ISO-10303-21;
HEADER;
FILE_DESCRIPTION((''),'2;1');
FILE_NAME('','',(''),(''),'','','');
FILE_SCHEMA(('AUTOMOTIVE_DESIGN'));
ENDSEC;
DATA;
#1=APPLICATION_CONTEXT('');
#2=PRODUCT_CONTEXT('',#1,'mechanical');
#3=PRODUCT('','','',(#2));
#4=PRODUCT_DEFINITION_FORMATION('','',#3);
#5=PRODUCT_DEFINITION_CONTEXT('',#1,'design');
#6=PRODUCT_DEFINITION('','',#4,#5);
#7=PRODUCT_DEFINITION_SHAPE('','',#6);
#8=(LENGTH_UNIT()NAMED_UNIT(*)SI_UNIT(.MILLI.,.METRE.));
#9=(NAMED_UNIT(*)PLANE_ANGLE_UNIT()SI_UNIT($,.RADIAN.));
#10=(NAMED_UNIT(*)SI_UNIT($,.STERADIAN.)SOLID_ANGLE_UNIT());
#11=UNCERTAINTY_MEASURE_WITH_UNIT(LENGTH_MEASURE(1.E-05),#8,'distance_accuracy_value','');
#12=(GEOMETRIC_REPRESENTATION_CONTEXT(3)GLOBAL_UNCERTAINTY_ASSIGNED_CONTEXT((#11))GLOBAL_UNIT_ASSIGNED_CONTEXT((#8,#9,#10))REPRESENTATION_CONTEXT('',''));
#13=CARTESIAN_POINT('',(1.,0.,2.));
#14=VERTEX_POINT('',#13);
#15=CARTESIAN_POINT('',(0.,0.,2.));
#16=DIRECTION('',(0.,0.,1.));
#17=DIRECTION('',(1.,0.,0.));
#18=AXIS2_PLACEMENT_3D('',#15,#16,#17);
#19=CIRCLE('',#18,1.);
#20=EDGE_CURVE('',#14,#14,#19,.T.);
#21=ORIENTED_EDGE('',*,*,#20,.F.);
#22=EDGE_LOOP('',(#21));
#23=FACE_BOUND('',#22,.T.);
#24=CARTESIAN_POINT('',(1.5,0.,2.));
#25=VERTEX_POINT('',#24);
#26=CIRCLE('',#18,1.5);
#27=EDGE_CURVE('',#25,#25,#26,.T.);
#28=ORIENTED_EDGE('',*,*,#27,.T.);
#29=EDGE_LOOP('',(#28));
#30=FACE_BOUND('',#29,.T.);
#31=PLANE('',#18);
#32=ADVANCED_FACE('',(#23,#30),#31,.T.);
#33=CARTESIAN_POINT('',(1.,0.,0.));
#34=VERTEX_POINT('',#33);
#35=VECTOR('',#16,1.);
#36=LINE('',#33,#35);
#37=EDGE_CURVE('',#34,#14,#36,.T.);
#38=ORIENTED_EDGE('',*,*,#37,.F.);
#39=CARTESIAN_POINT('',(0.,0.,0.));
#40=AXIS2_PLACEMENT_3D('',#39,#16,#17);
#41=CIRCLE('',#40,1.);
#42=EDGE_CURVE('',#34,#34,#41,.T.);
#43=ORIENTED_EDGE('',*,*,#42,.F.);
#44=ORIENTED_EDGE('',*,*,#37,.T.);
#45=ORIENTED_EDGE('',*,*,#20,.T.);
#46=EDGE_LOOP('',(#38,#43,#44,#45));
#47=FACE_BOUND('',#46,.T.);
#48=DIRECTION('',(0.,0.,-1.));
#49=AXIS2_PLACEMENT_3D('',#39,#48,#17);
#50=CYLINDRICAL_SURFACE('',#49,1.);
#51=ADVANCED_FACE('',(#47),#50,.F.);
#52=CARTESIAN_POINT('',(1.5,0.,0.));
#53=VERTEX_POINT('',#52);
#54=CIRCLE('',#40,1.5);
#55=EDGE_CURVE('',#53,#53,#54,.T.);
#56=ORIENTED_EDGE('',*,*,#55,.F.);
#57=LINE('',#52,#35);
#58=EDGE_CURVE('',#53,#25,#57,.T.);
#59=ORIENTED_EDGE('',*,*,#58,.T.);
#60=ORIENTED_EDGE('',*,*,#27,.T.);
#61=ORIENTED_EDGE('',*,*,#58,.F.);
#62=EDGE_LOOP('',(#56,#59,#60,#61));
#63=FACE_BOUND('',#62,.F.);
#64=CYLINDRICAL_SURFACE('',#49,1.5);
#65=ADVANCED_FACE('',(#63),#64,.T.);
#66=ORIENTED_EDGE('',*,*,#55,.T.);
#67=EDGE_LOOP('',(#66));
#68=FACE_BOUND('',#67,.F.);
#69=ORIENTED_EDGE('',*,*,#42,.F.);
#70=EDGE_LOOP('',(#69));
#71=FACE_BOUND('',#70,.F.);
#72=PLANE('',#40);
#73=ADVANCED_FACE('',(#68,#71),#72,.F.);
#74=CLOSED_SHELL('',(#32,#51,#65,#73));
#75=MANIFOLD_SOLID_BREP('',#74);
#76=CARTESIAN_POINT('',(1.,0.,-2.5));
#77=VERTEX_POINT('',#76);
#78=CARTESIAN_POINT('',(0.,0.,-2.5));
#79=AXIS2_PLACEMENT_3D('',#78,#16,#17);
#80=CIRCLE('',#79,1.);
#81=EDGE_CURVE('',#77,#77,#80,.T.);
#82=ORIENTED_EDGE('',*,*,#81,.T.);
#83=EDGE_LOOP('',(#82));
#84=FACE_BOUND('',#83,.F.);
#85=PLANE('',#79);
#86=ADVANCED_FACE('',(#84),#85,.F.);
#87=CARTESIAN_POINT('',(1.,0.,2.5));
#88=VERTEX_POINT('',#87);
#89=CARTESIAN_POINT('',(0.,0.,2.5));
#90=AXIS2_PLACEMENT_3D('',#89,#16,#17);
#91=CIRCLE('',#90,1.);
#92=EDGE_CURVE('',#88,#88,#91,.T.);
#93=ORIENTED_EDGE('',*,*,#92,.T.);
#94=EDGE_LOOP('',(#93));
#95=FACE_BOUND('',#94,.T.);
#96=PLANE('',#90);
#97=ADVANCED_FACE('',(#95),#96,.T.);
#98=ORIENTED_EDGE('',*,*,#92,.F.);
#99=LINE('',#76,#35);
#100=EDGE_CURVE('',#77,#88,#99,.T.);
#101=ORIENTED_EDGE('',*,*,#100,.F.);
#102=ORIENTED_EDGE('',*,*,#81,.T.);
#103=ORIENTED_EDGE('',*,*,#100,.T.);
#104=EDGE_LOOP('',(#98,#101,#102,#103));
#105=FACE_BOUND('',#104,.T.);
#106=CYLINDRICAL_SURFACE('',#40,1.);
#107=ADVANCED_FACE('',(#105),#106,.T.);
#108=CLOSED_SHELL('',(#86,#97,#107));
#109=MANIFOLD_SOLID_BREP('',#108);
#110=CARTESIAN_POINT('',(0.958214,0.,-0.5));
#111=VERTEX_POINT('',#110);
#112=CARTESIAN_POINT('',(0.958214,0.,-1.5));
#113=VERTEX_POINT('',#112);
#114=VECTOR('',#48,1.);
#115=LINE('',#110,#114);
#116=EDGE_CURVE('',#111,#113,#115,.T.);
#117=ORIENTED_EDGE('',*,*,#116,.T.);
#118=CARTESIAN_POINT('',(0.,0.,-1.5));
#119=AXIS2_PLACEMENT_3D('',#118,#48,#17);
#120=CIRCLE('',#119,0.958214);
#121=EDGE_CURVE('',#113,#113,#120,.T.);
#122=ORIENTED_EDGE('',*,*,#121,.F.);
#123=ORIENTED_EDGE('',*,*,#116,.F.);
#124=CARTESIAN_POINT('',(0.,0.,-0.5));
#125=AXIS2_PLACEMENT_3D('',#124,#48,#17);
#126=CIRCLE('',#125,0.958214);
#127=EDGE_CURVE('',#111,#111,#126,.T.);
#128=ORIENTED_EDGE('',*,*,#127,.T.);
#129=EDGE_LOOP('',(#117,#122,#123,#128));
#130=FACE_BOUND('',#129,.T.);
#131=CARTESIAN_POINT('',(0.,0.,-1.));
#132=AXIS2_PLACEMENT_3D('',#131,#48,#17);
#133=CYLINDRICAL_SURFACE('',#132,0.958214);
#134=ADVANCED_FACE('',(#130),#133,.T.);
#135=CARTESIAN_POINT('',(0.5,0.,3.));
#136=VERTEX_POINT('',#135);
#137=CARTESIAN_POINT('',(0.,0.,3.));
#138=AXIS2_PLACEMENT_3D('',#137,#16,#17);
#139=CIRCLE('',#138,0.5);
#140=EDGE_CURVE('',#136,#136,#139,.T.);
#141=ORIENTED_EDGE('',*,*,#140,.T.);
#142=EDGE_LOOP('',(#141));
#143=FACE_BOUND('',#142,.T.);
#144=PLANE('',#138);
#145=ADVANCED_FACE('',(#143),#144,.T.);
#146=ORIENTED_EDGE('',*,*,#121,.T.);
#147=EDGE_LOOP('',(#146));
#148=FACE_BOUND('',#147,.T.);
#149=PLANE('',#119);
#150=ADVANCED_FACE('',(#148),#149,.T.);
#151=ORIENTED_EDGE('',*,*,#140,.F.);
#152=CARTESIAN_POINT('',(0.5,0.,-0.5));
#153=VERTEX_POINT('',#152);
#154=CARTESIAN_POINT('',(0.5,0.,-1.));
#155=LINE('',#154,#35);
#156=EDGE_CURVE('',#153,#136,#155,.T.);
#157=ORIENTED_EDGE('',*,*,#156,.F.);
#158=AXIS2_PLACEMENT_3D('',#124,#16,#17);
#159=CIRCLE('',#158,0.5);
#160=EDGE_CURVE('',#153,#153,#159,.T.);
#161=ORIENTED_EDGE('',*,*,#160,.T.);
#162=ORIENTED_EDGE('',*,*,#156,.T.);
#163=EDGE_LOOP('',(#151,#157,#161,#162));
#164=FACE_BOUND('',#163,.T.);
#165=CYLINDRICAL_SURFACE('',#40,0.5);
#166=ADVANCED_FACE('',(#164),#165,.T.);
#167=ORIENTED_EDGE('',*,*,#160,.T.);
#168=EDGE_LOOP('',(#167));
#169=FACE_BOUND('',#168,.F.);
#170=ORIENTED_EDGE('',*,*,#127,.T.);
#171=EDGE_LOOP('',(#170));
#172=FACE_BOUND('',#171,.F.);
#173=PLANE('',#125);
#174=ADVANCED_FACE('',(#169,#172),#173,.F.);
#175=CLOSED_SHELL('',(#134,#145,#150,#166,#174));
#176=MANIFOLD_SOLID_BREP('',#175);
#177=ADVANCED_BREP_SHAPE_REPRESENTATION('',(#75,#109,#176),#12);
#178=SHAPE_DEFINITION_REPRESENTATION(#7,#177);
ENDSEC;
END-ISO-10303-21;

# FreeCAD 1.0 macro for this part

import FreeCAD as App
import Part
import Sketcher

V = App.Vector
Q = App.Units.Quantity

doc = App.newDocument("Part")
params = doc.addObject("Spreadsheet::Sheet", "Params")
for row, (alias, value) in enumerate([
    ("sketch1_diameter", "1 mm"),
    ("pad1_length", "3 mm"),
    ("sketch2_diameter", "1 mm"),
    ("pad2_length", "1 mm"),
    ("pad3_length", "1 mm"),
    ("sketch4_diameter", "3 mm"),
    ("sketch4_diameter2", "2 mm"),
    ("pad4_length", "2 mm"),
    ("sketch5_diameter", "2 mm"),
    ("pad5_length", "5 mm"),
], start=1):
    params.set(f"A{row}", alias)
    params.set(f"B{row}", "=" + value)
    params.setAlias(f"B{row}", alias)

body = doc.addObject("PartDesign::Body", "Body")

# Sketch on XY plane
sketch1 = body.newObject("Sketcher::SketchObject", "Sketch")
sketch1.AttachmentSupport = (doc.getObject("XY_Plane"), [""])
sketch1.MapMode = "FlatFace"
sketch1.addGeometry(Part.Circle(V(0, 0, 0), V(0, 0, 1), 0.5), False)
sketch1.addConstraint([
    Sketcher.Constraint("Coincident", 0, 3, -1, 1),
    Sketcher.Constraint("Diameter", 0, Q("1 mm")),
])
sketch1.setExpression("Constraints[1]", "Params.sketch1_diameter")
pad1 = body.newObject("PartDesign::Pad", "Pad")
pad1.Profile = sketch1
pad1.setExpression("Length", "Params.pad1_length")

# Sketch on XY plane
sketch2 = body.newObject("Sketcher::SketchObject", "Sketch001")
sketch2.AttachmentSupport = (doc.getObject("XY_Plane"), [""])
sketch2.MapMode = "FlatFace"
sketch2.addGeometry(Part.Circle(V(0, 0, 0), V(0, 0, 1), 0.5), False)
sketch2.addConstraint([
    Sketcher.Constraint("Coincident", 0, 3, -1, 1),
    Sketcher.Constraint("Diameter", 0, Q("1 mm")),
])
sketch2.setExpression("Constraints[1]", "Params.sketch2_diameter")
pad2 = body.newObject("PartDesign::Pad", "Pad001")
pad2.Profile = sketch2
pad2.setExpression("Length", "Params.pad2_length")
pad2.Reversed = True

# Sketch on XY plane
sketch3 = body.newObject("Sketcher::SketchObject", "Sketch002")
sketch3.AttachmentSupport = (doc.getObject("XY_Plane"), [""])
sketch3.MapMode = "FlatFace"
sketch3.AttachmentOffset = App.Placement(V(0, 0, -1), App.Rotation())
sketch3.addGeometry(Part.Circle(V(0, 0, 0), V(0, 0, 1), 1), False)
sketch3.addConstraint([
    Sketcher.Constraint("Coincident", 0, 3, -1, 1),
    Sketcher.Constraint("Diameter", 0, Q("1.916428 mm")),
])
pad3 = body.newObject("PartDesign::Pad", "Pad002")
pad3.Profile = sketch3
pad3.setExpression("Length", "Params.pad3_length")
pad3.Midplane = True
body2 = doc.addObject("PartDesign::Body", "Body001")

# Sketch on XY plane
sketch4 = body2.newObject("Sketcher::SketchObject", "Sketch003")
sketch4.AttachmentSupport = (doc.getObject("XY_Plane001"), [""])
sketch4.MapMode = "FlatFace"
sketch4.addGeometry([
    Part.Circle(V(0, 0, 0), V(0, 0, 1), 1.5),
    Part.Circle(V(0, 0, 0), V(0, 0, 1), 1),
], False)
sketch4.addConstraint([
    Sketcher.Constraint("Coincident", 0, 3, -1, 1),
    Sketcher.Constraint("Coincident", 1, 3, -1, 1),
    Sketcher.Constraint("Diameter", 0, Q("3 mm")),
    Sketcher.Constraint("Diameter", 1, Q("2 mm")),
])
sketch4.setExpression("Constraints[2]", "Params.sketch4_diameter")
sketch4.setExpression("Constraints[3]", "Params.sketch4_diameter2")
pad4 = body2.newObject("PartDesign::Pad", "Pad003")
pad4.Profile = sketch4
pad4.setExpression("Length", "Params.pad4_length")
body3 = doc.addObject("PartDesign::Body", "Body002")

# Sketch on XY plane
sketch5 = body3.newObject("Sketcher::SketchObject", "Sketch004")
sketch5.AttachmentSupport = (doc.getObject("XY_Plane002"), [""])
sketch5.MapMode = "FlatFace"
sketch5.addGeometry(Part.Circle(V(0, 0, 0), V(0, 0, 1), 1), False)
sketch5.addConstraint([
    Sketcher.Constraint("Coincident", 0, 3, -1, 1),
    Sketcher.Constraint("Diameter", 0, Q("2 mm")),
])
sketch5.setExpression("Constraints[1]", "Params.sketch5_diameter")
pad5 = body3.newObject("PartDesign::Pad", "Pad004")
pad5.Profile = sketch5
pad5.setExpression("Length", "Params.pad5_length")
pad5.Midplane = True

doc.recompute()
